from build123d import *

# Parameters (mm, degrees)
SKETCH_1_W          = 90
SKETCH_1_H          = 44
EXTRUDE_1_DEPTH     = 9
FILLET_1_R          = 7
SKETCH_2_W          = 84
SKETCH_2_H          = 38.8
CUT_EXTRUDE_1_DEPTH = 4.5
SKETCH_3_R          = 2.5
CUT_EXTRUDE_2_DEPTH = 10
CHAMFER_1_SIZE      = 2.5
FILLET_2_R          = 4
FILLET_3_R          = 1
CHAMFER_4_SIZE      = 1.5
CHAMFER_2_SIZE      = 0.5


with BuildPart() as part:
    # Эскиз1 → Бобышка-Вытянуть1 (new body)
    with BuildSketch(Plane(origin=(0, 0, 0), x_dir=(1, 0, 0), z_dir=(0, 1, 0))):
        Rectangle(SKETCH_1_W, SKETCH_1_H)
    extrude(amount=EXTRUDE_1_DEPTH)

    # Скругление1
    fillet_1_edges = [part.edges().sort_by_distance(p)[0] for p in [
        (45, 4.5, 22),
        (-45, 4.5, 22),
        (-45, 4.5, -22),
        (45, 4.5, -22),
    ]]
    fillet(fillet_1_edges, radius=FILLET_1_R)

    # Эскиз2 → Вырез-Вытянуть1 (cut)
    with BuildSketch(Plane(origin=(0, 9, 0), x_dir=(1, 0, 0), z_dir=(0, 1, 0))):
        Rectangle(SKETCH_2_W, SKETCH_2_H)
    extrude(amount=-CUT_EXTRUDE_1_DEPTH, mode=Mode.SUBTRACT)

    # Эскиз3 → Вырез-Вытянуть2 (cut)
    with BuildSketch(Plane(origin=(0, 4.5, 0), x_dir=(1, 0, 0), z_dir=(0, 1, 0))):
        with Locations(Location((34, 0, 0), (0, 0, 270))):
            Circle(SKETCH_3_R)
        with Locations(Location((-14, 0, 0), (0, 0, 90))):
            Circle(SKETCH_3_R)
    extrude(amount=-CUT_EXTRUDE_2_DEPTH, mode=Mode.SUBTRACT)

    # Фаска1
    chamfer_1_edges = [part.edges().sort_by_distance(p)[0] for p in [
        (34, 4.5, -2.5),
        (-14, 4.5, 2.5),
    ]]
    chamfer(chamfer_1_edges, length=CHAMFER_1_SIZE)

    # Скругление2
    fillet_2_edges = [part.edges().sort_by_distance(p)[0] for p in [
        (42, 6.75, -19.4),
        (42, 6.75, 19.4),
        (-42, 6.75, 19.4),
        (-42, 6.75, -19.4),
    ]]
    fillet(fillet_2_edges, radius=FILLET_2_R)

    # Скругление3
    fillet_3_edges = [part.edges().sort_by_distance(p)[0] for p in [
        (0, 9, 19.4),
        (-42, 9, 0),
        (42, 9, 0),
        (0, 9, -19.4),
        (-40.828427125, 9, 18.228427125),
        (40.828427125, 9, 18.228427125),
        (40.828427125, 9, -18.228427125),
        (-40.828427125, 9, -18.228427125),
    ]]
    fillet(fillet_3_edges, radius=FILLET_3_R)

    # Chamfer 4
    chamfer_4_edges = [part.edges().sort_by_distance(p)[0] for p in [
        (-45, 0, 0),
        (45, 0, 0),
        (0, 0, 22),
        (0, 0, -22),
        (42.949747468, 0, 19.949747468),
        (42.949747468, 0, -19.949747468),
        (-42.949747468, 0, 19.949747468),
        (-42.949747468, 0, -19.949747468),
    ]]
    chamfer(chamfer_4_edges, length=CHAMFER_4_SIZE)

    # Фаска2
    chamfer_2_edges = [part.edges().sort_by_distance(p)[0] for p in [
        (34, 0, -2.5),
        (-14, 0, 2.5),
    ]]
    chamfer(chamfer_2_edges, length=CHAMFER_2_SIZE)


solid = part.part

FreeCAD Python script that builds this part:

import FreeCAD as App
import Part
import Sketcher
from FreeCAD import Vector


def edges_at(feature, points):
    """Names of the edges that pass closest to the given points."""
    edges = feature.Shape.Edges
    near = lambda p: min(range(len(edges)), key=lambda i: edges[i].distToShape(Part.Vertex(*p))[0])
    return sorted({f"Edge{near(p) + 1}" for p in points})

doc = App.newDocument("Part")
params = doc.addObject("Spreadsheet::Sheet", "Params")
for row, (alias, value) in enumerate([
    ("sketch1_width", "90 mm"),
    ("sketch1_height", "44 mm"),
    ("pad1_length", "9 mm"),
    ("fillet_radius", "7 mm"),
    ("sketch2_width", "84 mm"),
    ("sketch2_height", "38.8 mm"),
    ("pocket1_length", "4.5 mm"),
    ("sketch3_diameter", "5 mm"),
    ("pocket2_length", "10 mm"),
    ("chamfer_size", "2.5 mm"),
    ("fillet2_radius", "4 mm"),
    ("fillet3_radius", "1 mm"),
    ("chamfer2_size", "1.5 mm"),
    ("chamfer3_size", "0.5 mm"),
], start=1):
    params.set(f"A{row}", alias)
    params.set(f"B{row}", "=" + value)
    params.setAlias(f"B{row}", alias)

body = doc.addObject("PartDesign::Body", "Body")

# Sketch on XZ plane
sketch1 = doc.addObject("Sketcher::SketchObject", "Sketch")
body.addObject(sketch1)
sketch1.AttachmentSupport = (doc.XZ_Plane, [""])
sketch1.MapMode = "FlatFace"
sketch1.addGeometry([
    Part.LineSegment(Vector(-45, -22, 0), Vector(-45, 22, 0)),
    Part.LineSegment(Vector(-45, 22, 0), Vector(45, 22, 0)),
    Part.LineSegment(Vector(45, 22, 0), Vector(45, -22, 0)),
    Part.LineSegment(Vector(45, -22, 0), Vector(-45, -22, 0)),
], False)
sketch1.addConstraint([
    Sketcher.Constraint("Coincident", 0, 2, 1, 1),
    Sketcher.Constraint("Coincident", 1, 2, 2, 1),
    Sketcher.Constraint("Coincident", 2, 2, 3, 1),
    Sketcher.Constraint("Coincident", 3, 2, 0, 1),
    Sketcher.Constraint("Vertical", 0),
    Sketcher.Constraint("Horizontal", 1),
    Sketcher.Constraint("Vertical", 2),
    Sketcher.Constraint("Horizontal", 3),
    Sketcher.Constraint("Symmetric", 0, 2, 2, 2, -1, 1),
    Sketcher.Constraint("DistanceX", 1, 1, 1, 2, 90.0),
    Sketcher.Constraint("DistanceY", 0, 1, 0, 2, 44.0),
])
sketch1.setExpression("Constraints[9]", "Params.sketch1_width")
sketch1.setExpression("Constraints[10]", "Params.sketch1_height")
pad1 = doc.addObject("PartDesign::Pad", "Pad")
body.addObject(pad1)
pad1.Profile = sketch1
pad1.setExpression("Length", "Params.pad1_length")
pad1.Reversed = True
doc.recompute()

fillet = doc.addObject("PartDesign::Fillet", "Fillet")
body.addObject(fillet)
fillet.Base = (pad1, edges_at(pad1, [
    (45, 4.5, 22),
    (-45, 4.5, 22),
    (-45, 4.5, -22),
    (45, 4.5, -22),
]))
fillet.setExpression("Radius", "Params.fillet_radius")

# Sketch on XZ plane
sketch2 = doc.addObject("Sketcher::SketchObject", "Sketch001")
body.addObject(sketch2)
sketch2.AttachmentSupport = (doc.XZ_Plane, [""])
sketch2.MapMode = "FlatFace"
sketch2.AttachmentOffset = App.Placement(Vector(0, 0, -9), App.Rotation())
sketch2.addGeometry([
    Part.LineSegment(Vector(-42, -19, 0), Vector(-42, 19, 0)),
    Part.LineSegment(Vector(-42, 19, 0), Vector(42, 19, 0)),
    Part.LineSegment(Vector(42, 19, 0), Vector(42, -19, 0)),
    Part.LineSegment(Vector(42, -19, 0), Vector(-42, -19, 0)),
], False)
sketch2.addConstraint([
    Sketcher.Constraint("Coincident", 0, 2, 1, 1),
    Sketcher.Constraint("Coincident", 1, 2, 2, 1),
    Sketcher.Constraint("Coincident", 2, 2, 3, 1),
    Sketcher.Constraint("Coincident", 3, 2, 0, 1),
    Sketcher.Constraint("Vertical", 0),
    Sketcher.Constraint("Horizontal", 1),
    Sketcher.Constraint("Vertical", 2),
    Sketcher.Constraint("Horizontal", 3),
    Sketcher.Constraint("Symmetric", 0, 2, 2, 2, -1, 1),
    Sketcher.Constraint("DistanceX", 1, 1, 1, 2, 84.0),
    Sketcher.Constraint("DistanceY", 0, 1, 0, 2, 38.8),
])
sketch2.setExpression("Constraints[9]", "Params.sketch2_width")
sketch2.setExpression("Constraints[10]", "Params.sketch2_height")
pocket1 = doc.addObject("PartDesign::Pocket", "Pocket")
body.addObject(pocket1)
pocket1.Profile = sketch2
pocket1.setExpression("Length", "Params.pocket1_length")
pocket1.Reversed = True

# Sketch on XZ plane
sketch3 = doc.addObject("Sketcher::SketchObject", "Sketch002")
body.addObject(sketch3)
sketch3.AttachmentSupport = (doc.XZ_Plane, [""])
sketch3.MapMode = "FlatFace"
sketch3.AttachmentOffset = App.Placement(Vector(0, 0, -4.5), App.Rotation())
sketch3.addGeometry([
    Part.Circle(Vector(34, 0, 0), Vector(0, 0, 1), 2.5),
    Part.Circle(Vector(-14, 0, 0), Vector(0, 0, 1), 2.5),
], False)
sketch3.addConstraint([
    Sketcher.Constraint("Equal", 0, 1),
    Sketcher.Constraint("PointOnObject", 0, 3, -1),
    Sketcher.Constraint("PointOnObject", 1, 3, -1),
    Sketcher.Constraint("Diameter", 0, 5.0),
    Sketcher.Constraint("DistanceX", -1, 1, 0, 3, 34.0),
    Sketcher.Constraint("DistanceX", 1, 3, -1, 1, 14.0),
])
sketch3.setExpression("Constraints[3]", "Params.sketch3_diameter")
pocket2 = doc.addObject("PartDesign::Pocket", "Pocket001")
body.addObject(pocket2)
pocket2.Profile = sketch3
pocket2.setExpression("Length", "Params.pocket2_length")
pocket2.Reversed = True
doc.recompute()

chamfer = doc.addObject("PartDesign::Chamfer", "Chamfer")
body.addObject(chamfer)
chamfer.Base = (pocket2, edges_at(pocket2, [(34, 4.5, -2.5), (-14, 4.5, 2.5)]))
chamfer.setExpression("Size", "Params.chamfer_size")
doc.recompute()

fillet2 = doc.addObject("PartDesign::Fillet", "Fillet001")
body.addObject(fillet2)
fillet2.Base = (chamfer, edges_at(chamfer, [
    (42, 6.75, -19.4),
    (42, 6.75, 19.4),
    (-42, 6.75, 19.4),
    (-42, 6.75, -19.4),
]))
fillet2.setExpression("Radius", "Params.fillet2_radius")
doc.recompute()

fillet3 = doc.addObject("PartDesign::Fillet", "Fillet002")
body.addObject(fillet3)
fillet3.Base = (fillet2, edges_at(fillet2, [
    (0, 9, 19.4),
    (-42, 9, 0),
    (42, 9, 0),
    (0, 9, -19.4),
    (-40.828, 9, 18.228),
    (40.828, 9, 18.228),
    (40.828, 9, -18.228),
    (-40.828, 9, -18.228),
]))
fillet3.setExpression("Radius", "Params.fillet3_radius")
doc.recompute()

chamfer2 = doc.addObject("PartDesign::Chamfer", "Chamfer001")
body.addObject(chamfer2)
chamfer2.Base = (fillet3, edges_at(fillet3, [
    (-45, 0, 0),
    (45, 0, 0),
    (0, 0, 22),
    (0, 0, -22),
    (42.95, 0, 19.95),
    (42.95, 0, -19.95),
    (-42.95, 0, 19.95),
    (-42.95, 0, -19.95),
]))
chamfer2.setExpression("Size", "Params.chamfer2_size")
doc.recompute()

chamfer3 = doc.addObject("PartDesign::Chamfer", "Chamfer002")
body.addObject(chamfer3)
chamfer3.Base = (chamfer2, edges_at(chamfer2, [(34, 0, -2.5), (-14, 0, 2.5)]))
chamfer3.setExpression("Size", "Params.chamfer3_size")

doc.recompute()
